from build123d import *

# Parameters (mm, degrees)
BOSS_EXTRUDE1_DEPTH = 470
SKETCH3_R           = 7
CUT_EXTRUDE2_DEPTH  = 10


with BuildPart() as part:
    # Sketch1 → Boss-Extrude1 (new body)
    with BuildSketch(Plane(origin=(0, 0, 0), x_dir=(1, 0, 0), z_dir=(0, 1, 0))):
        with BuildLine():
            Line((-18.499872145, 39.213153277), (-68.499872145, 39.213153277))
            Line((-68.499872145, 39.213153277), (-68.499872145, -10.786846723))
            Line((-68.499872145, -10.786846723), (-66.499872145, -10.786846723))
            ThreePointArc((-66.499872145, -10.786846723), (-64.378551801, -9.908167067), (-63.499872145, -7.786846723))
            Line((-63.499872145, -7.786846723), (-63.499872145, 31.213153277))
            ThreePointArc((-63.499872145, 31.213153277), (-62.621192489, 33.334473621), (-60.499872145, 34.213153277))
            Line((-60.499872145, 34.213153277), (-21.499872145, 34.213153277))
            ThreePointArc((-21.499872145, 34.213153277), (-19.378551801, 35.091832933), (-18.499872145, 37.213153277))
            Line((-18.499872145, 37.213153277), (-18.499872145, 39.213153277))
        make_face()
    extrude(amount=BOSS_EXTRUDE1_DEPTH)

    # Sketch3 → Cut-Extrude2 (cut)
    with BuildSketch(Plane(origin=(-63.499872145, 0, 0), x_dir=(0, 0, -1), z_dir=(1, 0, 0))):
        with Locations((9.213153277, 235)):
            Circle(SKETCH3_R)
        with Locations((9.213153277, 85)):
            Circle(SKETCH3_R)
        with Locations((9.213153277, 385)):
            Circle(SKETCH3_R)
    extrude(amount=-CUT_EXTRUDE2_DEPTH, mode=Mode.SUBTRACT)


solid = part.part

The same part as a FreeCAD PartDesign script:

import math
import FreeCAD as App
import Part
import Sketcher
from FreeCAD import Vector

doc = App.newDocument("Part")
body = doc.addObject("PartDesign::Body", "Body")

# Sketch on XZ plane
sketch1 = doc.addObject("Sketcher::SketchObject", "Sketch")
body.addObject(sketch1)
sketch1.AttachmentSupport = (doc.XZ_Plane, [""])
sketch1.MapMode = "FlatFace"
sketch1.addGeometry(Part.LineSegment(Vector(-18.5, -39.2, 0), Vector(-68.5, -39.2, 0)), False)
sketch1.addGeometry(Part.LineSegment(Vector(-68.5, -39.2, 0), Vector(-68.5, 10.8, 0)), False)
sketch1.addGeometry(Part.LineSegment(Vector(-68.5, 10.8, 0), Vector(-66.5, 10.8, 0)), False)
sketch1.addGeometry(Part.ArcOfCircle(Part.Circle(Vector(-66.5, 7.8, 0), Vector(0, 0, 1), 3), math.radians(0), math.radians(90)), False)
sketch1.addGeometry(Part.LineSegment(Vector(-63.5, 7.8, 0), Vector(-63.5, -31.2, 0)), False)
sketch1.addGeometry(Part.ArcOfCircle(Part.Circle(Vector(-60.5, -31.2, 0), Vector(0, 0, 1), 3), math.radians(180), math.radians(270)), False)
sketch1.addGeometry(Part.LineSegment(Vector(-60.5, -34.2, 0), Vector(-21.5, -34.2, 0)), False)
sketch1.addGeometry(Part.ArcOfCircle(Part.Circle(Vector(-21.5, -37.2, 0), Vector(0, 0, 1), 3), math.radians(0), math.radians(90)), False)
sketch1.addGeometry(Part.LineSegment(Vector(-18.5, -37.2, 0), Vector(-18.5, -39.2, 0)), False)
sketch1.addConstraint(Sketcher.Constraint("Coincident", 0, 2, 1, 1))
sketch1.addConstraint(Sketcher.Constraint("Coincident", 1, 2, 2, 1))
sketch1.addConstraint(Sketcher.Constraint("Tangent", 2, 2, 3, 2))
sketch1.addConstraint(Sketcher.Constraint("Tangent", 3, 1, 4, 1))
sketch1.addConstraint(Sketcher.Constraint("Tangent", 4, 2, 5, 1))
sketch1.addConstraint(Sketcher.Constraint("Tangent", 5, 2, 6, 1))
sketch1.addConstraint(Sketcher.Constraint("Tangent", 6, 2, 7, 2))
sketch1.addConstraint(Sketcher.Constraint("Tangent", 7, 1, 8, 1))
sketch1.addConstraint(Sketcher.Constraint("Coincident", 8, 2, 0, 1))
sketch1.addConstraint(Sketcher.Constraint("Horizontal", 0))
sketch1.addConstraint(Sketcher.Constraint("Vertical", 1))
sketch1.addConstraint(Sketcher.Constraint("Horizontal", 2))
sketch1.addConstraint(Sketcher.Constraint("Vertical", 4))
sketch1.addConstraint(Sketcher.Constraint("Horizontal", 6))
sketch1.addConstraint(Sketcher.Constraint("Vertical", 8))
sketch1.addConstraint(Sketcher.Constraint("Equal", 3, 5))
sketch1.addConstraint(Sketcher.Constraint("Equal", 5, 7))
sketch1.addConstraint(Sketcher.Constraint("Equal", 0, 1))
sketch1.addConstraint(Sketcher.Constraint("Equal", 6, 4))
sketch1.addConstraint(Sketcher.Constraint("Radius", 3, 3.0))
sketch1.addConstraint(Sketcher.Constraint("DistanceX", 0, 2, 0, 1, 50.0))
sketch1.addConstraint(Sketcher.Constraint("DistanceX", 2, 1, 2, 2, 2.0))
sketch1.addConstraint(Sketcher.Constraint("DistanceX", 3, 3, -1, 1, 66.499872))
sketch1.addConstraint(Sketcher.Constraint("DistanceY", -1, 1, 3, 3, 7.786847))
pad1 = doc.addObject("PartDesign::Pad", "Pad")
body.addObject(pad1)
pad1.Profile = sketch1
pad1.Length = 470
pad1.Reversed = True

# Sketch on YZ plane
sketch2 = doc.addObject("Sketcher::SketchObject", "Sketch001")
body.addObject(sketch2)
sketch2.AttachmentSupport = (doc.YZ_Plane, [""])
sketch2.MapMode = "FlatFace"
sketch2.AttachmentOffset = App.Placement(Vector(0, 0, -63.499872), App.Rotation())
sketch2.addGeometry(Part.Circle(Vector(235, -9, 0), Vector(0, 0, 1), 7), False)
sketch2.addGeometry(Part.Circle(Vector(85, -9, 0), Vector(0, 0, 1), 7), False)
sketch2.addGeometry(Part.Circle(Vector(385, -9, 0), Vector(0, 0, 1), 7), False)
sketch2.addConstraint(Sketcher.Constraint("Equal", 0, 1))
sketch2.addConstraint(Sketcher.Constraint("Equal", 1, 2))
sketch2.addConstraint(Sketcher.Constraint("Horizontal", 0, 3, 1, 3))
sketch2.addConstraint(Sketcher.Constraint("Horizontal", 1, 3, 2, 3))
sketch2.addConstraint(Sketcher.Constraint("Diameter", 0, 14.0))
sketch2.addConstraint(Sketcher.Constraint("DistanceX", -1, 1, 0, 3, 235.0))
sketch2.addConstraint(Sketcher.Constraint("DistanceX", -1, 1, 1, 3, 85.0))
sketch2.addConstraint(Sketcher.Constraint("DistanceX", -1, 1, 2, 3, 385.0))
sketch2.addConstraint(Sketcher.Constraint("DistanceY", 0, 3, -1, 1, 9.213153))
pocket1 = doc.addObject("PartDesign::Pocket", "Pocket")
body.addObject(pocket1)
pocket1.Profile = sketch2
pocket1.Length = 10

doc.recompute()
